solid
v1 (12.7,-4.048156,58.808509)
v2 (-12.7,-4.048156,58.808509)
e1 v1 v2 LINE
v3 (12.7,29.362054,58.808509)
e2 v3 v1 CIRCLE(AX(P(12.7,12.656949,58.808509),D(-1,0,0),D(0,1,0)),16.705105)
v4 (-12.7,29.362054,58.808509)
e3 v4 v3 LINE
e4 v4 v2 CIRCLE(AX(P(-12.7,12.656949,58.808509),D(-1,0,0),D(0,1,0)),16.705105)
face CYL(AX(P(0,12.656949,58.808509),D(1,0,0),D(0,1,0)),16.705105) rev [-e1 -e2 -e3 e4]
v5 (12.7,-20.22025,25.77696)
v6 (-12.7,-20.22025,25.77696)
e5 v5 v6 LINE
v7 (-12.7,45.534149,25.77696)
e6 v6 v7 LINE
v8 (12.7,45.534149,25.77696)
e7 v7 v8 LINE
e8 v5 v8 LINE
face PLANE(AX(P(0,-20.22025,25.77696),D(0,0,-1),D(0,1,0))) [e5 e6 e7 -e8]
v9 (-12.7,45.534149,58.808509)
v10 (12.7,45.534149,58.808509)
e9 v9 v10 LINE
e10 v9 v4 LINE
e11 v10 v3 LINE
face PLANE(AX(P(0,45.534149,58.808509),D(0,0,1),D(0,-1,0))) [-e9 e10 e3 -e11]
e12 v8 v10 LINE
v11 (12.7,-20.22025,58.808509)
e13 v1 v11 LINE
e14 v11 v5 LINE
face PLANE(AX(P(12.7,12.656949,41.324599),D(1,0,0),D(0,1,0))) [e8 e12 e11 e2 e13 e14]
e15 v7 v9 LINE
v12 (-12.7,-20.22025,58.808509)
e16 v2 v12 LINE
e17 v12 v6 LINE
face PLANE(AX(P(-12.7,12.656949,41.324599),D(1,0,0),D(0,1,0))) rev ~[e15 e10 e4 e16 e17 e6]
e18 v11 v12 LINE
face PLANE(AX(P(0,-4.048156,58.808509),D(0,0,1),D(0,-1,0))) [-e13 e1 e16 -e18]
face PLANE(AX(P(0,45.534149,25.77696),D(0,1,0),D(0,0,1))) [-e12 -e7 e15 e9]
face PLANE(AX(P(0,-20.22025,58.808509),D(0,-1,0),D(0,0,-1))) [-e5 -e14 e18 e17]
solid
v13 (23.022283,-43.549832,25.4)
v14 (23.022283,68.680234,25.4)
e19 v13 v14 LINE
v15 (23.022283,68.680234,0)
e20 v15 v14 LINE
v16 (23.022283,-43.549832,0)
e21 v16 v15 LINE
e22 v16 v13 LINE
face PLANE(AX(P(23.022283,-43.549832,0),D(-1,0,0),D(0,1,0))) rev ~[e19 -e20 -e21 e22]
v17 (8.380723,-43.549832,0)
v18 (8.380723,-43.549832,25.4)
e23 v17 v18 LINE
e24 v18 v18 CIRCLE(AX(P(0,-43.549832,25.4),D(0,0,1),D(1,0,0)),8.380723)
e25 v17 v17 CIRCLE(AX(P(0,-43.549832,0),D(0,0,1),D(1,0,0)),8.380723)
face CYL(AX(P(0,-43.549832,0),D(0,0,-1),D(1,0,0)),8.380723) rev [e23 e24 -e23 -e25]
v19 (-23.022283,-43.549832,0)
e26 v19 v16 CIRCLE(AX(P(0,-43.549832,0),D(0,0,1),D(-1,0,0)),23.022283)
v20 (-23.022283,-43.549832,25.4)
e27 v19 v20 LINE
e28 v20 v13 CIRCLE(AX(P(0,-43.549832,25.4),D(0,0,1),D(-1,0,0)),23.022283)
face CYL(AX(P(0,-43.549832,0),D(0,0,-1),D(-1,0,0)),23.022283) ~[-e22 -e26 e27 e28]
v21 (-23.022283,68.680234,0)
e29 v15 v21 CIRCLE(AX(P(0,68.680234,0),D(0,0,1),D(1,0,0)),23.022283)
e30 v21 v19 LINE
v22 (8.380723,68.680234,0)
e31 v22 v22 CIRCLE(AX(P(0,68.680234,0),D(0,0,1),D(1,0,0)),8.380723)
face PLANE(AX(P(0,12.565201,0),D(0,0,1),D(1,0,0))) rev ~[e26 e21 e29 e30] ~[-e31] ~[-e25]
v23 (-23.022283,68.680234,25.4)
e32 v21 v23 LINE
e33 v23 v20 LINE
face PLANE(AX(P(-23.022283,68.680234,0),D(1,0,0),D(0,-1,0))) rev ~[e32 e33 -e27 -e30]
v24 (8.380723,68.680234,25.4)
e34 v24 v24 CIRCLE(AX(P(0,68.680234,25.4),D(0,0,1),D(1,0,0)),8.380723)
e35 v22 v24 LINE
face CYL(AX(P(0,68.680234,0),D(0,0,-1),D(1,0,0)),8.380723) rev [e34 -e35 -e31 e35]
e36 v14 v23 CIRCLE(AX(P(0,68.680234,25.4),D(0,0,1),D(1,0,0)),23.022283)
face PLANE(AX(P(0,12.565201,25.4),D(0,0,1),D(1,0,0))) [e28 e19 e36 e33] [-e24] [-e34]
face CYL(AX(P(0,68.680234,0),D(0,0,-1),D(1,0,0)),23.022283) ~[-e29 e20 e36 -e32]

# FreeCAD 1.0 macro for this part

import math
import FreeCAD as App
import Part
import Sketcher
Q = App.Units.Quantity

doc = App.newDocument("Part")
params = doc.addObject("Spreadsheet::Sheet", "Params")
for row, (alias, value) in enumerate([
    ("pad1_length", "1 in"),
    ("pad2_length", "1 in"),
], start=1):
    params.set(f"A{row}", alias)
    params.set(f"B{row}", "=" + value)
    params.setAlias(f"B{row}", alias)

body = doc.addObject("PartDesign::Body", "Body")

sketch1 = body.newObject("Sketcher::SketchObject", "Sketch")
sketch1.AttachmentSupport = (doc.getObject("XY_Plane"), [""])
sketch1.MapMode = "FlatFace"
sketch1.addGeometry([
    Part.LineSegment(App.Vector(23, -44, 0), App.Vector(23, 69, 0)),
    Part.ArcOfCircle(Part.Circle(App.Vector(0, 69, 0), App.Vector(0, 0, 1), 23), math.radians(0), math.radians(180)),
    Part.LineSegment(App.Vector(-23, 69, 0), App.Vector(-23, -44, 0)),
    Part.ArcOfCircle(Part.Circle(App.Vector(0, -44, 0), App.Vector(0, 0, 1), 23), math.radians(180), math.radians(360)),
    Part.Circle(App.Vector(0, -44, 0), App.Vector(0, 0, 1), 8),
    Part.Circle(App.Vector(0, 69, 0), App.Vector(0, 0, 1), 8),
], False)
sketch1.addConstraint([
    Sketcher.Constraint("Tangent", 0, 2, 1, 1),
    Sketcher.Constraint("Tangent", 1, 2, 2, 1),
    Sketcher.Constraint("Tangent", 2, 2, 3, 1),
    Sketcher.Constraint("Tangent", 3, 2, 0, 1),
    Sketcher.Constraint("Vertical", 0),
    Sketcher.Constraint("Vertical", 2),
    Sketcher.Constraint("Coincident", 4, 3, 3, 3),
    Sketcher.Constraint("Coincident", 5, 3, 1, 3),
    Sketcher.Constraint("Equal", 4, 5),
    Sketcher.Constraint("PointOnObject", 1, 3, -2),
    Sketcher.Constraint("Diameter", 4, Q("16.761446 mm")),
    Sketcher.Constraint("Radius", 1, Q("23.022283 mm")),
    Sketcher.Constraint("DistanceY", 0, 1, 0, 2, Q("112.230066 mm")),
    Sketcher.Constraint("DistanceY", -1, 1, 1, 3, Q("68.680234 mm")),
])
pad1 = body.newObject("PartDesign::Pad", "Pad")
pad1.Profile = sketch1
pad1.setExpression("Length", "Params.pad1_length")
body2 = doc.addObject("PartDesign::Body", "Body001")

sketch2 = body2.newObject("Sketcher::SketchObject", "Sketch001")
sketch2.AttachmentSupport = (doc.getObject("YZ_Plane001"), [""])
sketch2.MapMode = "FlatFace"
sketch2.addGeometry([
    Part.LineSegment(App.Vector(-20, 26, 0), App.Vector(46, 26, 0)),
    Part.LineSegment(App.Vector(46, 26, 0), App.Vector(46, 59, 0)),
    Part.LineSegment(App.Vector(46, 59, 0), App.Vector(29, 59, 0)),
    Part.ArcOfCircle(Part.Circle(App.Vector(13, 59, 0), App.Vector(0, 0, 1), 17), math.radians(180), math.radians(360)),
    Part.LineSegment(App.Vector(-4, 59, 0), App.Vector(-20, 59, 0)),
    Part.LineSegment(App.Vector(-20, 59, 0), App.Vector(-20, 26, 0)),
], False)
sketch2.addConstraint([
    Sketcher.Constraint("Coincident", 0, 2, 1, 1),
    Sketcher.Constraint("Coincident", 1, 2, 2, 1),
    Sketcher.Constraint("Coincident", 2, 2, 3, 2),
    Sketcher.Constraint("Coincident", 3, 1, 4, 1),
    Sketcher.Constraint("Coincident", 4, 2, 5, 1),
    Sketcher.Constraint("Coincident", 5, 2, 0, 1),
    Sketcher.Constraint("Horizontal", 0),
    Sketcher.Constraint("Vertical", 1),
    Sketcher.Constraint("Horizontal", 2),
    Sketcher.Constraint("Horizontal", 4),
    Sketcher.Constraint("Vertical", 5),
    Sketcher.Constraint("Horizontal", 3, 3, 1, 2),
    Sketcher.Constraint("Horizontal", 2, 2, 3, 1),
    Sketcher.Constraint("Equal", 2, 4),
    Sketcher.Constraint("DistanceX", 0, 1, 0, 2, Q("65.754399 mm")),
    Sketcher.Constraint("Radius", 3, Q("16.705105 mm")),
    Sketcher.Constraint("DistanceY", 1, 1, 1, 2, Q("33.031549 mm")),
    Sketcher.Constraint("DistanceX", -1, 1, 3, 3, Q("12.656949 mm")),
    Sketcher.Constraint("DistanceY", -1, 1, 3, 3, Q("58.808509 mm")),
])
pad2 = body2.newObject("PartDesign::Pad", "Pad001")
pad2.Profile = sketch2
pad2.setExpression("Length", "Params.pad2_length")
pad2.Midplane = True

doc.recompute()
